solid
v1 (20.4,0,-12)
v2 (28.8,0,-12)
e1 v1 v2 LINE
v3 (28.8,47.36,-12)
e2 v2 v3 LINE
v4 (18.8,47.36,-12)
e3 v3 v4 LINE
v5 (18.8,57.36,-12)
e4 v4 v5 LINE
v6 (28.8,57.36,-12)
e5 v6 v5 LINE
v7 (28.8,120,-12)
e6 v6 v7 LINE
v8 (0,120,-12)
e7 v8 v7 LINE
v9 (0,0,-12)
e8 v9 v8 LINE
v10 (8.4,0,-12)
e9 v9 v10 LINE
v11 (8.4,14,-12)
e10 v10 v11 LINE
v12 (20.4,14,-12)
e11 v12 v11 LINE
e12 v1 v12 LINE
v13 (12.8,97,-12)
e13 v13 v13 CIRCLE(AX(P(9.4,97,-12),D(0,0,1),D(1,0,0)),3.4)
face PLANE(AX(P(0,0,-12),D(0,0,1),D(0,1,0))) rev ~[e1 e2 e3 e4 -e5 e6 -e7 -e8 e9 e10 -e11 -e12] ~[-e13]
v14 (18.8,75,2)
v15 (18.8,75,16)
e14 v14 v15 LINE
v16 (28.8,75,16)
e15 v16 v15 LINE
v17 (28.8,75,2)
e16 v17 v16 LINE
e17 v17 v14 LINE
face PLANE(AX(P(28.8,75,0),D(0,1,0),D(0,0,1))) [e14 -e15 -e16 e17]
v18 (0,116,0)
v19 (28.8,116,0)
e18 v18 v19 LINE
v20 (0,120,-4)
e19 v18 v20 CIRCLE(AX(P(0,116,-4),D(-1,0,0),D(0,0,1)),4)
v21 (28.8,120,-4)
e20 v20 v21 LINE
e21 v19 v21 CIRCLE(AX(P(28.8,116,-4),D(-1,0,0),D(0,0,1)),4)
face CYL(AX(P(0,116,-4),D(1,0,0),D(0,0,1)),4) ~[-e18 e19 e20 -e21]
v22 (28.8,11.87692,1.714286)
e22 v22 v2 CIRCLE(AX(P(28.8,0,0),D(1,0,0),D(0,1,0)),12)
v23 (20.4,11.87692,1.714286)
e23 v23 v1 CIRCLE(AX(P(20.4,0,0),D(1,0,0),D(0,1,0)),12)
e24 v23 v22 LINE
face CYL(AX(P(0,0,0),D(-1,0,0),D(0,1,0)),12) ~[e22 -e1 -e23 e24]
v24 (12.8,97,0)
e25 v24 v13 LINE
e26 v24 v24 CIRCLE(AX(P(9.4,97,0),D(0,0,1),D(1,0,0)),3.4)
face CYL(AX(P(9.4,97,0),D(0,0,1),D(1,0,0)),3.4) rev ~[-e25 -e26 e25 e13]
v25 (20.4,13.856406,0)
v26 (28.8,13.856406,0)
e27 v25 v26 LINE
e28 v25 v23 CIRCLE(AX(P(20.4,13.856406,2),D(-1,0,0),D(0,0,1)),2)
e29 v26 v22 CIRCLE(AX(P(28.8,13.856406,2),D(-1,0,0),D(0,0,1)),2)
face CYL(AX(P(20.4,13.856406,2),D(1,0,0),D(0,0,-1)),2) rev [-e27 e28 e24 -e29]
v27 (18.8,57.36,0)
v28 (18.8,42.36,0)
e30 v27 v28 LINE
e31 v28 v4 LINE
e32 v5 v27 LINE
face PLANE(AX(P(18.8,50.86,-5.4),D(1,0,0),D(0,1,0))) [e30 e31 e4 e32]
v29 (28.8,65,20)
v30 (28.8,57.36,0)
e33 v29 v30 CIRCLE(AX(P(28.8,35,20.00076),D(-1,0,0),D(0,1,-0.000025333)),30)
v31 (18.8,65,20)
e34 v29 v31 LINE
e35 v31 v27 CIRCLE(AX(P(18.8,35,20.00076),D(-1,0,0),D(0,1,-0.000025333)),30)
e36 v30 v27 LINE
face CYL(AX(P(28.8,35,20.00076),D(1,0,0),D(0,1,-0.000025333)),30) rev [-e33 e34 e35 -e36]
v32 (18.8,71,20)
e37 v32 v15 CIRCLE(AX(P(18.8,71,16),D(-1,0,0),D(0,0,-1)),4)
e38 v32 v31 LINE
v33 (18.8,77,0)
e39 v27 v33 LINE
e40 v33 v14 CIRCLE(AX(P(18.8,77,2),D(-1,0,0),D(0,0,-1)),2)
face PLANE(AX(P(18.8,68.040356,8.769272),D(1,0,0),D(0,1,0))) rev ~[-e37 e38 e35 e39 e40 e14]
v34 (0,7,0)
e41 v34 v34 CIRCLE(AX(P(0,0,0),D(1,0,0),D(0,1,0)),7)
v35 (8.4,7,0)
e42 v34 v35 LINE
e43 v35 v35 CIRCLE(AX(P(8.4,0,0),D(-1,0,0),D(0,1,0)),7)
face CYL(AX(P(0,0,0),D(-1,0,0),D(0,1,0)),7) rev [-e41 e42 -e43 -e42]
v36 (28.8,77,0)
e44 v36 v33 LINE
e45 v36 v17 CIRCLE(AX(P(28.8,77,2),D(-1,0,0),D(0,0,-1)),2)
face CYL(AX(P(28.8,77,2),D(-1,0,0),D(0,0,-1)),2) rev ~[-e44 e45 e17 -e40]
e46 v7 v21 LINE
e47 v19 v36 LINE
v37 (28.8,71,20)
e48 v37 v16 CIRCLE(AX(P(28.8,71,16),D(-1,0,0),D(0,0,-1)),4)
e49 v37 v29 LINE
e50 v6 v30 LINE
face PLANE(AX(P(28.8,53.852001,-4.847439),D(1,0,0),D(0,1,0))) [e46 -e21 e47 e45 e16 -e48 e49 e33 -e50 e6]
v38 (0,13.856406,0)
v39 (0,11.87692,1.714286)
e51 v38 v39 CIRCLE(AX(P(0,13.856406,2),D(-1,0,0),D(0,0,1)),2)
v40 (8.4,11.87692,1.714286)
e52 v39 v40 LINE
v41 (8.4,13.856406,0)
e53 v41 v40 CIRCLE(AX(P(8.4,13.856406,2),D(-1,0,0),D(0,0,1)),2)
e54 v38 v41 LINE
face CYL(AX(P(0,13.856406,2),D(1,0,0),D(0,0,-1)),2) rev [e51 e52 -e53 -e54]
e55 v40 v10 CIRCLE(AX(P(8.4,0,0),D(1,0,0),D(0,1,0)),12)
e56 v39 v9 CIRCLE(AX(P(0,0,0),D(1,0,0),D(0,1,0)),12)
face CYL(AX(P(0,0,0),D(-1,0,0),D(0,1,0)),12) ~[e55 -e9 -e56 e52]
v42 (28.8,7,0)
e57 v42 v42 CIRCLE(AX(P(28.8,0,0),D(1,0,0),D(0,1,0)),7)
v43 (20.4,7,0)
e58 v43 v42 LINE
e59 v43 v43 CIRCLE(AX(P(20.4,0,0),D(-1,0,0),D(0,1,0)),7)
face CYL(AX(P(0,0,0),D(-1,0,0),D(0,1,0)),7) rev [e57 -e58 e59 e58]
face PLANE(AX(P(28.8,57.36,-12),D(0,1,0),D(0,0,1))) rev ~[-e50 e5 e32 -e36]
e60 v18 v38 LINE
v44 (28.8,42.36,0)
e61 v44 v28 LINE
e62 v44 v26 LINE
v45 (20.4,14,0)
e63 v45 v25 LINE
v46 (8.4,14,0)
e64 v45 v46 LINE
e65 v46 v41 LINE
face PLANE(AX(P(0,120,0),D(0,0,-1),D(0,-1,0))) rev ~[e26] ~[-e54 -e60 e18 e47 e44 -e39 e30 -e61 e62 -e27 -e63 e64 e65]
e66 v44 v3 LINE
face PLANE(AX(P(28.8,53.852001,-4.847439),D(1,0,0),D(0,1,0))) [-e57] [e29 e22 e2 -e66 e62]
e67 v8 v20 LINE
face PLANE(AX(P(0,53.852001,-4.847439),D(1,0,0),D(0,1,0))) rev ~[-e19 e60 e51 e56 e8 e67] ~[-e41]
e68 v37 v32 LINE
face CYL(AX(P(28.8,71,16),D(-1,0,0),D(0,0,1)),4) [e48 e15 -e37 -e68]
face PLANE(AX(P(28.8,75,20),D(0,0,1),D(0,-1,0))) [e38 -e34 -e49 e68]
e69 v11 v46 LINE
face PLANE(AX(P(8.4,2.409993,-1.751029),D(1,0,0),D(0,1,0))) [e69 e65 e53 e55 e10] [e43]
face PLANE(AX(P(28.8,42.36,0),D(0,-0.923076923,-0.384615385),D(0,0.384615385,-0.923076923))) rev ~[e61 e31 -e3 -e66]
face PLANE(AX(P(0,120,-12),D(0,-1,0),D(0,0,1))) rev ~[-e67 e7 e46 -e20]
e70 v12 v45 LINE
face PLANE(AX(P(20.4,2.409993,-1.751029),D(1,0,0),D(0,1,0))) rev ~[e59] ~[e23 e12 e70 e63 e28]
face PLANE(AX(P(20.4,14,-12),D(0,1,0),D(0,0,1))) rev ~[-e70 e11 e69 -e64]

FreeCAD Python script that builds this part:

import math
import FreeCAD as App
import Part
import Sketcher

V = App.Vector


def edges_at(feature, points):
    """Names of the edges that pass closest to the given points."""
    edges = feature.Shape.Edges
    near = lambda p: min(range(len(edges)), key=lambda i: edges[i].distToShape(Part.Vertex(*p))[0])
    return sorted({f"Edge{near(p) + 1}" for p in points})


def add_polygon(sketch, points):
    """Adds a closed chain of lines whose ends are joined by coincident constraints."""
    first, n = sketch.GeometryCount, len(points)
    for a, b in zip(points, points[1:] + points[:1]):
        sketch.addGeometry(Part.LineSegment(App.Vector(*a, 0), App.Vector(*b, 0)), False)
    for i in range(n):
        sketch.addConstraint(Sketcher.Constraint("Coincident", first + i, 2, first + (i + 1) % n, 1))

doc = App.newDocument("Part")
params = doc.addObject("Spreadsheet::Sheet", "Params")
for row, (alias, value) in enumerate([
    ("sketch1_diameter", "14 mm"),
    ("sketch1_radius", "12 mm"),
    ("sketch1_width", "108 mm"),
    ("pad1_length", "28.8 mm"),
    ("sketch2_radius", "12 mm"),
    ("sketch2_width", "2 mm"),
    ("pocket1_length", "12 mm"),
    ("sketch3_radius", "30 mm"),
    ("sketch3_width", "10 mm"),
    ("sketch3_height", "20 mm"),
    ("sketch3_width2", "17.64 mm"),
    ("pad2_length", "10 mm"),
    ("sketch4_width", "15 mm"),
    ("sketch4_width2", "10 mm"),
    ("sketch4_height", "12 mm"),
    ("pocket2_length", "10 mm"),
    ("sketch5_diameter", "6.8 mm"),
    ("fillet_radius", "2 mm"),
    ("fillet2_radius", "4 mm"),
], start=1):
    params.set(f"A{row}", alias)
    params.set(f"B{row}", "=" + value)
    params.setAlias(f"B{row}", alias)

body = doc.addObject("PartDesign::Body", "Body")

# Sketch on YZ plane
sketch1 = body.newObject("Sketcher::SketchObject", "Sketch")
sketch1.AttachmentSupport = (doc.getObject("YZ_Plane"), [""])
sketch1.MapMode = "FlatFace"
sketch1.addGeometry([
    Part.LineSegment(V(120, 0, 0), V(12, 0, 0)),  # 0
    Part.ArcOfCircle(Part.Circle(V(0, 0, 0), V(0, 0, 1), 12), math.radians(0), math.radians(270)),  # 1
    Part.LineSegment(V(0, -12, 0), V(120, -12, 0)),  # 2
    Part.LineSegment(V(120, -12, 0), V(120, 0, 0)),  # 3
    Part.Circle(V(0, 0, 0), V(0, 0, 1), 7),  # 4
], False)
sketch1.addConstraint([
    Sketcher.Constraint("Coincident", 0, 2, 1, 1),
    Sketcher.Constraint("Tangent", 1, 2, 2, 1),
    Sketcher.Constraint("Coincident", 2, 2, 3, 1),
    Sketcher.Constraint("Coincident", 3, 2, 0, 1),
    Sketcher.Constraint("Horizontal", 0),
    Sketcher.Constraint("Horizontal", 2),
    Sketcher.Constraint("Vertical", 3),
    Sketcher.Constraint("Coincident", 1, 3, -1, 1),
    Sketcher.Constraint("Coincident", 4, 3, -1, 1),
    Sketcher.Constraint("PointOnObject", 0, 2, -1),
    Sketcher.Constraint("Diameter", 4, 14.0),
    Sketcher.Constraint("Radius", 1, 12.0),
    Sketcher.Constraint("DistanceX", 0, 2, 0, 1, 108.0),
])
sketch1.setExpression("Constraints[10]", "Params.sketch1_diameter")
sketch1.setExpression("Constraints[11]", "Params.sketch1_radius")
sketch1.setExpression("Constraints[12]", "Params.sketch1_width")
pad1 = body.newObject("PartDesign::Pad", "Pad")
pad1.Profile = sketch1
pad1.setExpression("Length", "Params.pad1_length")

# Sketch on YZ plane
sketch2 = body.newObject("Sketcher::SketchObject", "Sketch001")
sketch2.AttachmentSupport = (doc.getObject("YZ_Plane"), [""])
sketch2.MapMode = "FlatFace"
sketch2.AttachmentOffset = App.Placement(V(0, 0, 20.4), App.Rotation())
sketch2.addGeometry([
    Part.LineSegment(V(14, -12, 0), V(14, 0, 0)),
    Part.LineSegment(V(14, 0, 0), V(12, 0, 0)),
    Part.ArcOfCircle(Part.Circle(V(0, 0, 0), V(0, 0, 1), 12), math.radians(0), math.radians(270)),
    Part.LineSegment(V(0, -12, 0), V(14, -12, 0)),
], False)
sketch2.addConstraint([
    Sketcher.Constraint("Coincident", 0, 2, 1, 1),
    Sketcher.Constraint("Coincident", 1, 2, 2, 1),
    Sketcher.Constraint("Tangent", 2, 2, 3, 1),
    Sketcher.Constraint("Coincident", 3, 2, 0, 1),
    Sketcher.Constraint("Vertical", 0),
    Sketcher.Constraint("Horizontal", 1),
    Sketcher.Constraint("Horizontal", 3),
    Sketcher.Constraint("Coincident", 2, 3, -1, 1),
    Sketcher.Constraint("PointOnObject", 0, 2, -1),
    Sketcher.Constraint("Radius", 2, 12.0),
    Sketcher.Constraint("DistanceX", 1, 2, 1, 1, 2.0),
])
sketch2.setExpression("Constraints[9]", "Params.sketch2_radius")
sketch2.setExpression("Constraints[10]", "Params.sketch2_width")
pocket1 = body.newObject("PartDesign::Pocket", "Pocket")
pocket1.Profile = sketch2
pocket1.setExpression("Length", "Params.pocket1_length")

# Sketch on YZ plane
sketch3 = body.newObject("Sketcher::SketchObject", "Sketch002")
sketch3.AttachmentSupport = (doc.getObject("YZ_Plane"), [""])
sketch3.MapMode = "FlatFace"
sketch3.AttachmentOffset = App.Placement(V(0, 0, 28.8), App.Rotation())
sketch3.addGeometry([
    Part.LineSegment(V(75, 0, 0), V(75, 20, 0)),
    Part.LineSegment(V(75, 20, 0), V(65, 20, 0)),
    Part.ArcOfCircle(Part.Circle(V(35, 20.00076, 0), V(0, 0, 1), 30), math.radians(-41.812262), math.radians(-0.001451)),
    Part.LineSegment(V(57.36, 0, 0), V(75, 0, 0)),
], False)
sketch3.addConstraint([
    Sketcher.Constraint("Coincident", 0, 2, 1, 1),
    Sketcher.Constraint("Coincident", 1, 2, 2, 2),
    Sketcher.Constraint("Coincident", 2, 1, 3, 1),
    Sketcher.Constraint("Coincident", 3, 2, 0, 1),
    Sketcher.Constraint("Vertical", 0),
    Sketcher.Constraint("Horizontal", 1),
    Sketcher.Constraint("Horizontal", 3),
    Sketcher.Constraint("PointOnObject", 2, 1, -1),
    Sketcher.Constraint("Radius", 2, 30.0),
    Sketcher.Constraint("DistanceX", 1, 2, 1, 1, 10.0),
    Sketcher.Constraint("DistanceY", 0, 1, 0, 2, 20.0),
    Sketcher.Constraint("DistanceX", -1, 1, 2, 3, 35.0),
    Sketcher.Constraint("DistanceX", 3, 1, 3, 2, 17.64),
])
sketch3.setExpression("Constraints[8]", "Params.sketch3_radius")
sketch3.setExpression("Constraints[9]", "Params.sketch3_width")
sketch3.setExpression("Constraints[10]", "Params.sketch3_height")
sketch3.setExpression("Constraints[12]", "Params.sketch3_width2")
pad2 = body.newObject("PartDesign::Pad", "Pad001")
pad2.Profile = sketch3
pad2.setExpression("Length", "Params.pad2_length")
pad2.Reversed = True

# Sketch on YZ plane
sketch4 = body.newObject("Sketcher::SketchObject", "Sketch003")
sketch4.AttachmentSupport = (doc.getObject("YZ_Plane"), [""])
sketch4.MapMode = "FlatFace"
sketch4.AttachmentOffset = App.Placement(V(0, 0, 28.8), App.Rotation())
add_polygon(sketch4, [(57.36, -12), (57.36, 0), (42.36, 0), (47.36, -12)])  # lines 0-3
sketch4.addConstraint([
    Sketcher.Constraint("Vertical", 0),
    Sketcher.Constraint("Horizontal", 1),
    Sketcher.Constraint("Horizontal", 3),
    Sketcher.Constraint("PointOnObject", 0, 2, -1),
    Sketcher.Constraint("DistanceX", 1, 2, 1, 1, 15.0),
    Sketcher.Constraint("DistanceX", 3, 1, 3, 2, 10.0),
    Sketcher.Constraint("DistanceY", 0, 1, 0, 2, 12.0),
    Sketcher.Constraint("DistanceX", -1, 1, 0, 2, 57.36),
])
sketch4.setExpression("Constraints[8]", "Params.sketch4_width")
sketch4.setExpression("Constraints[9]", "Params.sketch4_width2")
sketch4.setExpression("Constraints[10]", "Params.sketch4_height")
pocket2 = body.newObject("PartDesign::Pocket", "Pocket001")
pocket2.Profile = sketch4
pocket2.setExpression("Length", "Params.pocket2_length")

# Sketch on XY plane
sketch5 = body.newObject("Sketcher::SketchObject", "Sketch004")
sketch5.AttachmentSupport = (doc.getObject("XY_Plane"), [""])
sketch5.MapMode = "FlatFace"
sketch5.addGeometry(Part.Circle(V(9.4, 97, 0), V(0, 0, 1), 3.4), False)
sketch5.addConstraint([
    Sketcher.Constraint("Diameter", 0, 6.8),
    Sketcher.Constraint("DistanceY", -1, 1, 0, 3, 97.0),
    Sketcher.Constraint("DistanceX", -1, 1, 0, 3, 9.4),
])
sketch5.setExpression("Constraints[0]", "Params.sketch5_diameter")
pocket3 = body.newObject("PartDesign::Pocket", "Pocket002")
pocket3.Profile = sketch5
pocket3.Type = "ThroughAll"
doc.recompute()

fillet = body.newObject("PartDesign::Fillet", "Fillet")
fillet.Base = (pocket3, edges_at(pocket3, [(23.8, 75, 0), (24.6, 12, 0), (4.2, 12, 0)]))
fillet.setExpression("Radius", "Params.fillet_radius")
doc.recompute()

fillet2 = body.newObject("PartDesign::Fillet", "Fillet001")
fillet2.Base = (fillet, edges_at(fillet, [(23.8, 75, 20), (14.4, 120, 0)]))
fillet2.setExpression("Radius", "Params.fillet2_radius")

doc.recompute()
